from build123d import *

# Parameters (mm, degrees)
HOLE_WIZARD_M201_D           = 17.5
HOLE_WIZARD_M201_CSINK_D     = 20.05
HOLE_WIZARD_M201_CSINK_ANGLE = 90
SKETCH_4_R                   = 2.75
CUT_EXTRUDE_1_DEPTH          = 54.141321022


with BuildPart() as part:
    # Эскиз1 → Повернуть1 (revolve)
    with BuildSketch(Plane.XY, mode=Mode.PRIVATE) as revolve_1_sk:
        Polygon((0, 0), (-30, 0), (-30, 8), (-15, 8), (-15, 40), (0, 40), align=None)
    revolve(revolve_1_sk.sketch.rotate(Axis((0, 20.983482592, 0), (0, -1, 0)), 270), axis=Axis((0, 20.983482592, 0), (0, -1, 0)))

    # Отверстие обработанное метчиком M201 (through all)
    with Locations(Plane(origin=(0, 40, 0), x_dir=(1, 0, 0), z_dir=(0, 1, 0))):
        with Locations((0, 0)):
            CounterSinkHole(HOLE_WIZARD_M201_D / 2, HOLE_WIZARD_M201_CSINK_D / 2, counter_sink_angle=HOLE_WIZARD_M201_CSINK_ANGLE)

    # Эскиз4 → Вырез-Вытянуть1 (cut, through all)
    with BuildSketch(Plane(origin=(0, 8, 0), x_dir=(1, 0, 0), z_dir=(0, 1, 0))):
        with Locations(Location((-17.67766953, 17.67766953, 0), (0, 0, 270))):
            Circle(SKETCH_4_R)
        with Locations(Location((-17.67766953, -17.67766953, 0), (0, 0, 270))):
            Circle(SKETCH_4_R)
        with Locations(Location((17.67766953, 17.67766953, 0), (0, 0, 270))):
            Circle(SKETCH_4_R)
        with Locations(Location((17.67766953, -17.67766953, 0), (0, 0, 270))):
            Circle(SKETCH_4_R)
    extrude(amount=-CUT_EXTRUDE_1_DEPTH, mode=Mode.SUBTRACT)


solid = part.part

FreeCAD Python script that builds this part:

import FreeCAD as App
import Part
import Sketcher
Q = App.Units.Quantity


def add_polygon(sketch, points):
    """Adds a closed chain of lines whose ends are joined by coincident constraints."""
    first, n = sketch.GeometryCount, len(points)
    for a, b in zip(points, points[1:] + points[:1]):
        sketch.addGeometry(Part.LineSegment(App.Vector(*a, 0), App.Vector(*b, 0)), False)
    for i in range(n):
        sketch.addConstraint(Sketcher.Constraint("Coincident", first + i, 2, first + (i + 1) % n, 1))

doc = App.newDocument("Part")
body = doc.addObject("PartDesign::Body", "Body")

# Sketch on XY plane
sketch1 = body.newObject("Sketcher::SketchObject", "Sketch")
sketch1.AttachmentSupport = (doc.getObject("XY_Plane"), [""])
sketch1.MapMode = "FlatFace"
add_polygon(sketch1, [(-30, 0), (0, 0), (0, 40), (-15, 40), (-15, 8), (-30, 8)])  # lines 0-5
sketch1.addConstraint([
    Sketcher.Constraint("Horizontal", 0),
    Sketcher.Constraint("Vertical", 1),
    Sketcher.Constraint("Horizontal", 2),
    Sketcher.Constraint("Vertical", 3),
    Sketcher.Constraint("Horizontal", 4),
    Sketcher.Constraint("Vertical", 5),
    Sketcher.Constraint("Coincident", 0, 2, -1, 1),
    Sketcher.Constraint("Equal", 2, 4),
    Sketcher.Constraint("DistanceX", 0, 1, 0, 2, Q("30 mm")),
    Sketcher.Constraint("DistanceY", 1, 1, 1, 2, Q("40 mm")),
    Sketcher.Constraint("DistanceY", 3, 2, 3, 1, Q("32 mm")),
])
revolution = body.newObject("PartDesign::Revolution", "Revolution")
revolution.Profile = sketch1
revolution.ReferenceAxis = (sketch1, ["V_Axis"])
revolution.Angle = 360

# Sketch on XZ plane
sketch2 = body.newObject("Sketcher::SketchObject", "Sketch001")
sketch2.AttachmentSupport = (doc.getObject("XZ_Plane"), [""])
sketch2.MapMode = "FlatFace"
sketch2.AttachmentOffset = App.Placement(App.Vector(0, 0, -40), App.Rotation())
sketch2.addGeometry(Part.Circle(App.Vector(0, 0, 0), App.Vector(0, 0, 1), 8.75), False)
sketch2.addConstraint([
    Sketcher.Constraint("Coincident", 0, 3, -1, 1),
    Sketcher.Constraint("Diameter", 0, Q("17.5 mm")),
])
doc.recompute()
hole = body.newObject("PartDesign::Hole", "Hole")
hole.Profile = sketch2
hole.ThreadType = "None"
hole.Diameter = 17.5
hole.DepthType = "ThroughAll"
hole.HoleCutType = "Countersink"
hole.HoleCutDiameter = 20.05
hole.HoleCutCountersinkAngle = 90
hole.Reversed = True

# Sketch on XZ plane
sketch3 = body.newObject("Sketcher::SketchObject", "Sketch002")
sketch3.AttachmentSupport = (doc.getObject("XZ_Plane"), [""])
sketch3.MapMode = "FlatFace"
sketch3.AttachmentOffset = App.Placement(App.Vector(0, 0, -8), App.Rotation())
sketch3.addGeometry([
    Part.Circle(App.Vector(-17.67767, -17.67767, 0), App.Vector(0, 0, 1), 2.75),
    Part.Circle(App.Vector(-17.67767, 17.67767, 0), App.Vector(0, 0, 1), 2.75),
    Part.Circle(App.Vector(17.67767, -17.67767, 0), App.Vector(0, 0, 1), 2.75),
    Part.Circle(App.Vector(17.67767, 17.67767, 0), App.Vector(0, 0, 1), 2.75),
], False)
sketch3.addConstraint([
    Sketcher.Constraint("Equal", 0, 1),
    Sketcher.Constraint("Equal", 1, 2),
    Sketcher.Constraint("Equal", 2, 3),
    Sketcher.Constraint("Symmetric", 1, 3, 2, 3, -1, 1),
    Sketcher.Constraint("Symmetric", 0, 3, 3, 3, -1, 1),
    Sketcher.Constraint("Symmetric", 0, 3, 2, 3, -2),
    Sketcher.Constraint("Diameter", 0, Q("5.5 mm")),
    Sketcher.Constraint("DistanceX", 0, 3, -1, 1, Q("17.67767 mm")),
    Sketcher.Constraint("DistanceY", 0, 3, -1, 1, Q("17.67767 mm")),
])
pocket1 = body.newObject("PartDesign::Pocket", "Pocket")
pocket1.Profile = sketch3
pocket1.Type = "ThroughAll"
pocket1.Reversed = True

doc.recompute()
